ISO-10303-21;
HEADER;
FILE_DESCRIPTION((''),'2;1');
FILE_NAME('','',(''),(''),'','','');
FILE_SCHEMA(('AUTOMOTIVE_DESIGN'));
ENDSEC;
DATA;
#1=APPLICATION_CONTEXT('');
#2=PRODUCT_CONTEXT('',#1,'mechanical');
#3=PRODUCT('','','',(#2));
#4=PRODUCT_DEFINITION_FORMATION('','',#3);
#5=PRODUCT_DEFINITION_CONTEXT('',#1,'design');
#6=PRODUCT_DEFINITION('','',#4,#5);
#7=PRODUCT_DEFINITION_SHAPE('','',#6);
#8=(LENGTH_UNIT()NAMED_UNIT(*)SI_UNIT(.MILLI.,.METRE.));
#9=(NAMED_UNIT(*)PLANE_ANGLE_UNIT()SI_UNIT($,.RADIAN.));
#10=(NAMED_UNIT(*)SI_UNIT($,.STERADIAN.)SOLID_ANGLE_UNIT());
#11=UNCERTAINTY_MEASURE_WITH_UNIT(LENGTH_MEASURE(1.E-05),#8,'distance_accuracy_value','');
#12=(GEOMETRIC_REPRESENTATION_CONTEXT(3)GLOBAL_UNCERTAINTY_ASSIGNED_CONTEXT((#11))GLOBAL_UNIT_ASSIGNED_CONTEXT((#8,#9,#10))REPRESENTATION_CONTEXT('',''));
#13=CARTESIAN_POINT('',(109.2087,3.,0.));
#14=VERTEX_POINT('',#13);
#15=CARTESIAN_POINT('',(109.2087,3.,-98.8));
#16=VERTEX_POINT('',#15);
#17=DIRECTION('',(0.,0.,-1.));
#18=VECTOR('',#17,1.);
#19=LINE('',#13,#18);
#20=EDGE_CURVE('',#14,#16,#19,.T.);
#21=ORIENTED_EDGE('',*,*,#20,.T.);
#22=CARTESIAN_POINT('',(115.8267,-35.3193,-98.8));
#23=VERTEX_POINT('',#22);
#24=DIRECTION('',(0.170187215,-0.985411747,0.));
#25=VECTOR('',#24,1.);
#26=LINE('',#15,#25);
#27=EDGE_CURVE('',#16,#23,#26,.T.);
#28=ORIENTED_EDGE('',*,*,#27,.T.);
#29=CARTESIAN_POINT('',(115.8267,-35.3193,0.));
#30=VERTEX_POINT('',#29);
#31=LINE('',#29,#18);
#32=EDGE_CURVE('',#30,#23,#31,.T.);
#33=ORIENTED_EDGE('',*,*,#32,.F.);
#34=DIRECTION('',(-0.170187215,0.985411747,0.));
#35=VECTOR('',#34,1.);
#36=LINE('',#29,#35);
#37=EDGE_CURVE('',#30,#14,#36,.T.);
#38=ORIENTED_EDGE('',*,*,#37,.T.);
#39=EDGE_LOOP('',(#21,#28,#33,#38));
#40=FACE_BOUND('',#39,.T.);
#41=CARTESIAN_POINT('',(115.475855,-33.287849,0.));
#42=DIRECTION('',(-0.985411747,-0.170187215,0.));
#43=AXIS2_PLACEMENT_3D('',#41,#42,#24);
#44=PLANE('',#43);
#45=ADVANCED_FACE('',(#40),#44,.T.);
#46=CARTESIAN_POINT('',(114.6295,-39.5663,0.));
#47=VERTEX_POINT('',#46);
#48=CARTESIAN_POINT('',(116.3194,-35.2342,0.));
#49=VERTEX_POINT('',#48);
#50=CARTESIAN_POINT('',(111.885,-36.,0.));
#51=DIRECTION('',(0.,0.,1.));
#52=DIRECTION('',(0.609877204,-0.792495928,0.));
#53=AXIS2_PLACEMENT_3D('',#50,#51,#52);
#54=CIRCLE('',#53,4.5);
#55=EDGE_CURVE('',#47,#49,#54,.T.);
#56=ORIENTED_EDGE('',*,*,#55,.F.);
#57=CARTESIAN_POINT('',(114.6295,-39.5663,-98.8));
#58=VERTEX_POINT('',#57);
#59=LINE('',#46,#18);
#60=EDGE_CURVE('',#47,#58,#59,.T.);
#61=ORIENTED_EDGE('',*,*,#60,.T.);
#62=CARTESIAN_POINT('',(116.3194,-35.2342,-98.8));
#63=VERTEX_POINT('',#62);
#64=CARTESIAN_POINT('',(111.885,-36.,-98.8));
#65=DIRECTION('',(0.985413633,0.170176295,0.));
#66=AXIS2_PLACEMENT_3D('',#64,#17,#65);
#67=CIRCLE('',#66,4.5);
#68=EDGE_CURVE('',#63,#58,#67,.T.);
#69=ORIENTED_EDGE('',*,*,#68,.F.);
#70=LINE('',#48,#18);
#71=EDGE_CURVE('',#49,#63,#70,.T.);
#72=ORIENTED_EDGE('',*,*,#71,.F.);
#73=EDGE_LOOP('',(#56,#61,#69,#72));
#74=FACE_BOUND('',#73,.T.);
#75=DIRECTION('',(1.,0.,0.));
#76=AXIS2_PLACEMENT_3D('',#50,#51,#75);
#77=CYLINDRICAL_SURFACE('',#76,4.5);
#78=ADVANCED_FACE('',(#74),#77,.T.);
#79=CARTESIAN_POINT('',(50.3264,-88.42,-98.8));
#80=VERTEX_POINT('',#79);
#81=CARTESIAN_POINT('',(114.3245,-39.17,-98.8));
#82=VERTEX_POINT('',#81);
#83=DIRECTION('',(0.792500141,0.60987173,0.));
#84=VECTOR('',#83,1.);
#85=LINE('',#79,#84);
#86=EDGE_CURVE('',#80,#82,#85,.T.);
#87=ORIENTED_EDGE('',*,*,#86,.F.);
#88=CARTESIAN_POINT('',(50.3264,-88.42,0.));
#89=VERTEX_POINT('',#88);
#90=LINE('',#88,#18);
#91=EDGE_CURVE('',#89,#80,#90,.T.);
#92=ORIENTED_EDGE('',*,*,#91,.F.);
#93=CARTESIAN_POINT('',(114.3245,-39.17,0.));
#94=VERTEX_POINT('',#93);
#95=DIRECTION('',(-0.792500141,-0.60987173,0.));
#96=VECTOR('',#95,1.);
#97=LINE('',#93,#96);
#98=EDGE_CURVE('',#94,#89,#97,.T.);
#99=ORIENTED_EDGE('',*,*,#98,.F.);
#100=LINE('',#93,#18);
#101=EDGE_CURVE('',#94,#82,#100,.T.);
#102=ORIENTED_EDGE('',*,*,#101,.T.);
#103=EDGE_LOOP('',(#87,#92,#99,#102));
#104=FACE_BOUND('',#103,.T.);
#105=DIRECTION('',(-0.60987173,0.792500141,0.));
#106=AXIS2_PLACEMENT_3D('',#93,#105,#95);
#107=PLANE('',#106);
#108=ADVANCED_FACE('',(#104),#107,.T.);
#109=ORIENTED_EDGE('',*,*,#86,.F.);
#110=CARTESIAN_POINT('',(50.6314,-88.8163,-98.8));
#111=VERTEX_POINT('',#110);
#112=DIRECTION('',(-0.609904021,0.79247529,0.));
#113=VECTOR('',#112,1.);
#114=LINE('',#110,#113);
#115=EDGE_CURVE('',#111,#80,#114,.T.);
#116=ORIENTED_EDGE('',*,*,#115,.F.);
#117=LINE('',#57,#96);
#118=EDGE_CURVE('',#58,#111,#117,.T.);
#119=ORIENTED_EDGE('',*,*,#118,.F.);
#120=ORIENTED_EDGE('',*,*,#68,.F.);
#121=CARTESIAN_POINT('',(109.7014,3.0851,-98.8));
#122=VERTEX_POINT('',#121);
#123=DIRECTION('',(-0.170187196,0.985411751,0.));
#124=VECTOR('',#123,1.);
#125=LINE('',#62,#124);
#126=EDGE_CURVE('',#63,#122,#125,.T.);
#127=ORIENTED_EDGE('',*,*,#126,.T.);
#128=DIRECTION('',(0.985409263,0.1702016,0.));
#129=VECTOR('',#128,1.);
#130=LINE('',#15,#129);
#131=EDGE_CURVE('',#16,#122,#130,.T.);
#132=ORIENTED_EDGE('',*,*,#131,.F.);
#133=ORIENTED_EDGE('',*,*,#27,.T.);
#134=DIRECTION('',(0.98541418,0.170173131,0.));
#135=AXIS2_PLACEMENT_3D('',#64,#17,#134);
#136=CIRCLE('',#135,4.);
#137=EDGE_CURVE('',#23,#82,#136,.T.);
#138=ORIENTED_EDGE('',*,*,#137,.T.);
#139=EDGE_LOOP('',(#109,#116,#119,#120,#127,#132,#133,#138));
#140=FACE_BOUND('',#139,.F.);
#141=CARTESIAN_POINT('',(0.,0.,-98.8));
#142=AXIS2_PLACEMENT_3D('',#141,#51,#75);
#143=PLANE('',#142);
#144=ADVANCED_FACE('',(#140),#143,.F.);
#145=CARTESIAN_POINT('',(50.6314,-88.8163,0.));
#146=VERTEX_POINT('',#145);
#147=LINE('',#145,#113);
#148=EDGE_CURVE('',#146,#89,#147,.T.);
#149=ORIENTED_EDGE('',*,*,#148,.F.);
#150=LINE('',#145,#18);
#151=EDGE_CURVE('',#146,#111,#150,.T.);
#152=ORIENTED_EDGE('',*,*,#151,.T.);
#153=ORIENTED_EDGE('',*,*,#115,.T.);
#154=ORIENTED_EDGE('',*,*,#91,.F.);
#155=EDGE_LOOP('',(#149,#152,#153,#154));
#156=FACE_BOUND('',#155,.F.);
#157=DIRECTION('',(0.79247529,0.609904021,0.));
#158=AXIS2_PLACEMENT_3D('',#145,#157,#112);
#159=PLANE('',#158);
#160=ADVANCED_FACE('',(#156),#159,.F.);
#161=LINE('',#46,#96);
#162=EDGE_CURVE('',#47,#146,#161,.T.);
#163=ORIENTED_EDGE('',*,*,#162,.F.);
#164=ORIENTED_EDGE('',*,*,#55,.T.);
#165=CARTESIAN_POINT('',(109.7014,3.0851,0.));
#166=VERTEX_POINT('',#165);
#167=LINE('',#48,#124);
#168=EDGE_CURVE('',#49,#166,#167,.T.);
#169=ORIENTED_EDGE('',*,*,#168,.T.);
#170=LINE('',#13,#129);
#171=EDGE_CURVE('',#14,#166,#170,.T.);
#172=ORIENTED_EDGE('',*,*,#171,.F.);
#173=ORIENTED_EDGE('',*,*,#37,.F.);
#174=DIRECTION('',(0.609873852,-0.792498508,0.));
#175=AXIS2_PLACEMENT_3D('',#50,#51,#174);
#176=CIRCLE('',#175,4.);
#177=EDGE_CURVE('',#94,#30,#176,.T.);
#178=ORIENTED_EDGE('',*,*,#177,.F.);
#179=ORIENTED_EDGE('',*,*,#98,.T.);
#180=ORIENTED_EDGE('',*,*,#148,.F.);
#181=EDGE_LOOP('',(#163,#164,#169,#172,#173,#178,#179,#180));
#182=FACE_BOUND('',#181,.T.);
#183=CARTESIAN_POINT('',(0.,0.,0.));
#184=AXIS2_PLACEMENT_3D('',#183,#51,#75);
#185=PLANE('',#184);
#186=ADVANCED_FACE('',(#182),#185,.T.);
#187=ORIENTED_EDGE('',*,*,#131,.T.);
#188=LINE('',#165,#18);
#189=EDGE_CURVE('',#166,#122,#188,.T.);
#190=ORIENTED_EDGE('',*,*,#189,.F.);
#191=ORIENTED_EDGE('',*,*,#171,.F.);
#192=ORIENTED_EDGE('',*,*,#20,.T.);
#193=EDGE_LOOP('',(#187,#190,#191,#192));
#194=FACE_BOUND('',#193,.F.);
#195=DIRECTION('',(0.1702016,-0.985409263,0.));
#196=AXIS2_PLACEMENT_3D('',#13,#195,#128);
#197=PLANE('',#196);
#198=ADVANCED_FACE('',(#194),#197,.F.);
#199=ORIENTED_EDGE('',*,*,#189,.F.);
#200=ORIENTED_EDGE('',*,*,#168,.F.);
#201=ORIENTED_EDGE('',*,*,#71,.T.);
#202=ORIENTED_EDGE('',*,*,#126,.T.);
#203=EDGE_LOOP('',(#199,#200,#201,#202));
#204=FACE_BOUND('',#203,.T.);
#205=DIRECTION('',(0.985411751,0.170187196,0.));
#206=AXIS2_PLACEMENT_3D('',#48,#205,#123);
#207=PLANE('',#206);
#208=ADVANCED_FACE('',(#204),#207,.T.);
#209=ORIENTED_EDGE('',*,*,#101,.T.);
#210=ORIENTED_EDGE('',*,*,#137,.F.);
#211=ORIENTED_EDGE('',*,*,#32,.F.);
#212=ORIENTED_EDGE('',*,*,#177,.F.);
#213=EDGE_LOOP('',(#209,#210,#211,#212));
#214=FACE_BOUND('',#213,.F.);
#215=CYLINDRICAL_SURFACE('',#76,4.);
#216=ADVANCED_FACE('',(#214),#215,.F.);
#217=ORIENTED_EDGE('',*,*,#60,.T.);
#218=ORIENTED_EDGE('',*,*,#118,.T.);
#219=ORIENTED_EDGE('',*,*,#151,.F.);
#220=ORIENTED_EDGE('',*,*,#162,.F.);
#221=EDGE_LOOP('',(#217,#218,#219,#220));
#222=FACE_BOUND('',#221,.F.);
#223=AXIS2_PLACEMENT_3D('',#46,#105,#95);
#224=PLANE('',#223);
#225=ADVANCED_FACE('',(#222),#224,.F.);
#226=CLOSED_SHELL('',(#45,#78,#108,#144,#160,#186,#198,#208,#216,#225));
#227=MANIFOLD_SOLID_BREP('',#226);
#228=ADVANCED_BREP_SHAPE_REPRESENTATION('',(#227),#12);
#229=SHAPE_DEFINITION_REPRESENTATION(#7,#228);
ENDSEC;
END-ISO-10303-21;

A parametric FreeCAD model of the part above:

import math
import FreeCAD as App
import Part
import Sketcher

V = App.Vector
Q = App.Units.Quantity

doc = App.newDocument("Part")
body = doc.addObject("PartDesign::Body", "Body")

# Sketch on XY plane
sketch1 = doc.addObject("Sketcher::SketchObject", "Sketch")
body.addObject(sketch1)
sketch1.AttachmentSupport = (doc.XY_Plane, [""])
sketch1.MapMode = "FlatFace"
sketch1.addGeometry([
    Part.ArcOfCircle(Part.Circle(V(111.885, -36, 0), V(0, 0, 1), 4), math.radians(-52.419618), math.radians(9.797885)),  # 0
    Part.LineSegment(V(114.3245, -39.17, 0), V(50.3264, -88.42, 0)),  # 1
    Part.LineSegment(V(50.3264, -88.42, 0), V(50.6314, -88.8163, 0)),  # 2
    Part.LineSegment(V(50.6314, -88.8163, 0), V(114.6295, -39.5663, 0)),  # 3
    Part.ArcOfCircle(Part.Circle(V(111.885, -36, 0), V(0, 0, 1), 4.5), math.radians(-52.419375), math.radians(9.798069)),  # 4
    Part.LineSegment(V(116.3194, -35.2342, 0), V(109.701401, 3.0851, 0)),  # 5
    Part.LineSegment(V(109.7014, 3.0851, 0), V(109.2087, 3, 0)),  # 6
    Part.LineSegment(V(109.2087, 3, 0), V(115.8267, -35.3193, 0)),  # 7
], False)
sketch1.addConstraint([
    Sketcher.Constraint("Tangent", 0, 1, 1, 1),
    Sketcher.Constraint("Coincident", 1, 2, 2, 1),
    Sketcher.Constraint("Coincident", 2, 2, 3, 1),
    Sketcher.Constraint("Tangent", 3, 2, 4, 1),
    Sketcher.Constraint("Tangent", 4, 2, 5, 1),
    Sketcher.Constraint("Coincident", 5, 2, 6, 1),
    Sketcher.Constraint("Coincident", 6, 2, 7, 1),
    Sketcher.Constraint("Tangent", 7, 2, 0, 2),
    Sketcher.Constraint("Coincident", 4, 3, 0, 3),
    Sketcher.Constraint("Perpendicular", 1, 2),
    Sketcher.Constraint("Perpendicular", 2, 3),
    Sketcher.Constraint("Perpendicular", 5, 6),
    Sketcher.Constraint("Perpendicular", 6, 7),
    Sketcher.Constraint("Radius", 0, Q("4 mm")),
    Sketcher.Constraint("Distance", 2, Q("0.5 mm")),
    Sketcher.Constraint("DistanceY", 0, 3, -1, 1, Q("36 mm")),
    Sketcher.Constraint("DistanceY", -1, 1, 6, 2, Q("3 mm")),
    Sketcher.Constraint("Angle", 6, Q("-170.2005 deg")),
    Sketcher.Constraint("Angle", 1, Q("-142.4198 deg")),
    Sketcher.Constraint("DistanceY", 1, 2, -1, 1, Q("88.42 mm")),
    Sketcher.Constraint("DistanceX", -1, 1, 0, 3, Q("111.885 mm")),
])
pad1 = doc.addObject("PartDesign::Pad", "Pad")
body.addObject(pad1)
pad1.Profile = sketch1
pad1.Length = 98.8
pad1.Reversed = True

doc.recompute()
